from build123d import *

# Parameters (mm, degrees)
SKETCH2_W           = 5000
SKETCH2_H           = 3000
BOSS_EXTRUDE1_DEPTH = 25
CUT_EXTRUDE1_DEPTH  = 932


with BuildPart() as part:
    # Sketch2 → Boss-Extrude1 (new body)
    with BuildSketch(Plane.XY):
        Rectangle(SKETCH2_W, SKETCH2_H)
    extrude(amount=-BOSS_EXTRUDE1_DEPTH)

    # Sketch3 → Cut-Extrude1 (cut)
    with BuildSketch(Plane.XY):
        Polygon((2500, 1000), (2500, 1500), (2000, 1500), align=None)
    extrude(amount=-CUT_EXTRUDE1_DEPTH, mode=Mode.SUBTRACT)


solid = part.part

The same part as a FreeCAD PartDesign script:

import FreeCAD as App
import Part
import Sketcher

V = App.Vector
Q = App.Units.Quantity


def add_polygon(sketch, points):
    """Adds a closed chain of lines whose ends are joined by coincident constraints."""
    first, n = sketch.GeometryCount, len(points)
    for a, b in zip(points, points[1:] + points[:1]):
        sketch.addGeometry(Part.LineSegment(App.Vector(*a, 0), App.Vector(*b, 0)), False)
    for i in range(n):
        sketch.addConstraint(Sketcher.Constraint("Coincident", first + i, 2, first + (i + 1) % n, 1))

doc = App.newDocument("Part")
body = doc.addObject("PartDesign::Body", "Body")

# Sketch on XY plane
sketch1 = doc.addObject("Sketcher::SketchObject", "Sketch")
body.addObject(sketch1)
sketch1.AttachmentSupport = (doc.XY_Plane, [""])
sketch1.MapMode = "FlatFace"
add_polygon(sketch1, [(-2500, 1500), (-2500, -1500), (2500, -1500), (2500, 1500)])  # lines 0-3
sketch1.addConstraint([
    Sketcher.Constraint("Vertical", 0),
    Sketcher.Constraint("Horizontal", 1),
    Sketcher.Constraint("Vertical", 2),
    Sketcher.Constraint("Horizontal", 3),
    Sketcher.Constraint("Symmetric", 0, 2, 2, 2, -1, 1),
    Sketcher.Constraint("DistanceX", 1, 1, 1, 2, Q("5000 mm")),
    Sketcher.Constraint("DistanceY", 0, 2, 0, 1, Q("3000 mm")),
])
pad1 = doc.addObject("PartDesign::Pad", "Pad")
body.addObject(pad1)
pad1.Profile = sketch1
pad1.Length = 25
pad1.Reversed = True

# Sketch on XY plane
sketch2 = doc.addObject("Sketcher::SketchObject", "Sketch001")
body.addObject(sketch2)
sketch2.AttachmentSupport = (doc.XY_Plane, [""])
sketch2.MapMode = "FlatFace"
add_polygon(sketch2, [(2500, 1000), (2500, 1500), (2000, 1500)])  # lines 0-2
sketch2.addConstraint([
    Sketcher.Constraint("Vertical", 0),
    Sketcher.Constraint("Horizontal", 1),
    Sketcher.Constraint("Equal", 1, 0),
    Sketcher.Constraint("DistanceX", 1, 2, 1, 1, Q("500 mm")),
    Sketcher.Constraint("DistanceX", -1, 1, 0, 2, Q("2500 mm")),
    Sketcher.Constraint("DistanceY", -1, 1, 0, 2, Q("1500 mm")),
])
pocket1 = doc.addObject("PartDesign::Pocket", "Pocket")
body.addObject(pocket1)
pocket1.Profile = sketch2
pocket1.Length = 932

doc.recompute()
